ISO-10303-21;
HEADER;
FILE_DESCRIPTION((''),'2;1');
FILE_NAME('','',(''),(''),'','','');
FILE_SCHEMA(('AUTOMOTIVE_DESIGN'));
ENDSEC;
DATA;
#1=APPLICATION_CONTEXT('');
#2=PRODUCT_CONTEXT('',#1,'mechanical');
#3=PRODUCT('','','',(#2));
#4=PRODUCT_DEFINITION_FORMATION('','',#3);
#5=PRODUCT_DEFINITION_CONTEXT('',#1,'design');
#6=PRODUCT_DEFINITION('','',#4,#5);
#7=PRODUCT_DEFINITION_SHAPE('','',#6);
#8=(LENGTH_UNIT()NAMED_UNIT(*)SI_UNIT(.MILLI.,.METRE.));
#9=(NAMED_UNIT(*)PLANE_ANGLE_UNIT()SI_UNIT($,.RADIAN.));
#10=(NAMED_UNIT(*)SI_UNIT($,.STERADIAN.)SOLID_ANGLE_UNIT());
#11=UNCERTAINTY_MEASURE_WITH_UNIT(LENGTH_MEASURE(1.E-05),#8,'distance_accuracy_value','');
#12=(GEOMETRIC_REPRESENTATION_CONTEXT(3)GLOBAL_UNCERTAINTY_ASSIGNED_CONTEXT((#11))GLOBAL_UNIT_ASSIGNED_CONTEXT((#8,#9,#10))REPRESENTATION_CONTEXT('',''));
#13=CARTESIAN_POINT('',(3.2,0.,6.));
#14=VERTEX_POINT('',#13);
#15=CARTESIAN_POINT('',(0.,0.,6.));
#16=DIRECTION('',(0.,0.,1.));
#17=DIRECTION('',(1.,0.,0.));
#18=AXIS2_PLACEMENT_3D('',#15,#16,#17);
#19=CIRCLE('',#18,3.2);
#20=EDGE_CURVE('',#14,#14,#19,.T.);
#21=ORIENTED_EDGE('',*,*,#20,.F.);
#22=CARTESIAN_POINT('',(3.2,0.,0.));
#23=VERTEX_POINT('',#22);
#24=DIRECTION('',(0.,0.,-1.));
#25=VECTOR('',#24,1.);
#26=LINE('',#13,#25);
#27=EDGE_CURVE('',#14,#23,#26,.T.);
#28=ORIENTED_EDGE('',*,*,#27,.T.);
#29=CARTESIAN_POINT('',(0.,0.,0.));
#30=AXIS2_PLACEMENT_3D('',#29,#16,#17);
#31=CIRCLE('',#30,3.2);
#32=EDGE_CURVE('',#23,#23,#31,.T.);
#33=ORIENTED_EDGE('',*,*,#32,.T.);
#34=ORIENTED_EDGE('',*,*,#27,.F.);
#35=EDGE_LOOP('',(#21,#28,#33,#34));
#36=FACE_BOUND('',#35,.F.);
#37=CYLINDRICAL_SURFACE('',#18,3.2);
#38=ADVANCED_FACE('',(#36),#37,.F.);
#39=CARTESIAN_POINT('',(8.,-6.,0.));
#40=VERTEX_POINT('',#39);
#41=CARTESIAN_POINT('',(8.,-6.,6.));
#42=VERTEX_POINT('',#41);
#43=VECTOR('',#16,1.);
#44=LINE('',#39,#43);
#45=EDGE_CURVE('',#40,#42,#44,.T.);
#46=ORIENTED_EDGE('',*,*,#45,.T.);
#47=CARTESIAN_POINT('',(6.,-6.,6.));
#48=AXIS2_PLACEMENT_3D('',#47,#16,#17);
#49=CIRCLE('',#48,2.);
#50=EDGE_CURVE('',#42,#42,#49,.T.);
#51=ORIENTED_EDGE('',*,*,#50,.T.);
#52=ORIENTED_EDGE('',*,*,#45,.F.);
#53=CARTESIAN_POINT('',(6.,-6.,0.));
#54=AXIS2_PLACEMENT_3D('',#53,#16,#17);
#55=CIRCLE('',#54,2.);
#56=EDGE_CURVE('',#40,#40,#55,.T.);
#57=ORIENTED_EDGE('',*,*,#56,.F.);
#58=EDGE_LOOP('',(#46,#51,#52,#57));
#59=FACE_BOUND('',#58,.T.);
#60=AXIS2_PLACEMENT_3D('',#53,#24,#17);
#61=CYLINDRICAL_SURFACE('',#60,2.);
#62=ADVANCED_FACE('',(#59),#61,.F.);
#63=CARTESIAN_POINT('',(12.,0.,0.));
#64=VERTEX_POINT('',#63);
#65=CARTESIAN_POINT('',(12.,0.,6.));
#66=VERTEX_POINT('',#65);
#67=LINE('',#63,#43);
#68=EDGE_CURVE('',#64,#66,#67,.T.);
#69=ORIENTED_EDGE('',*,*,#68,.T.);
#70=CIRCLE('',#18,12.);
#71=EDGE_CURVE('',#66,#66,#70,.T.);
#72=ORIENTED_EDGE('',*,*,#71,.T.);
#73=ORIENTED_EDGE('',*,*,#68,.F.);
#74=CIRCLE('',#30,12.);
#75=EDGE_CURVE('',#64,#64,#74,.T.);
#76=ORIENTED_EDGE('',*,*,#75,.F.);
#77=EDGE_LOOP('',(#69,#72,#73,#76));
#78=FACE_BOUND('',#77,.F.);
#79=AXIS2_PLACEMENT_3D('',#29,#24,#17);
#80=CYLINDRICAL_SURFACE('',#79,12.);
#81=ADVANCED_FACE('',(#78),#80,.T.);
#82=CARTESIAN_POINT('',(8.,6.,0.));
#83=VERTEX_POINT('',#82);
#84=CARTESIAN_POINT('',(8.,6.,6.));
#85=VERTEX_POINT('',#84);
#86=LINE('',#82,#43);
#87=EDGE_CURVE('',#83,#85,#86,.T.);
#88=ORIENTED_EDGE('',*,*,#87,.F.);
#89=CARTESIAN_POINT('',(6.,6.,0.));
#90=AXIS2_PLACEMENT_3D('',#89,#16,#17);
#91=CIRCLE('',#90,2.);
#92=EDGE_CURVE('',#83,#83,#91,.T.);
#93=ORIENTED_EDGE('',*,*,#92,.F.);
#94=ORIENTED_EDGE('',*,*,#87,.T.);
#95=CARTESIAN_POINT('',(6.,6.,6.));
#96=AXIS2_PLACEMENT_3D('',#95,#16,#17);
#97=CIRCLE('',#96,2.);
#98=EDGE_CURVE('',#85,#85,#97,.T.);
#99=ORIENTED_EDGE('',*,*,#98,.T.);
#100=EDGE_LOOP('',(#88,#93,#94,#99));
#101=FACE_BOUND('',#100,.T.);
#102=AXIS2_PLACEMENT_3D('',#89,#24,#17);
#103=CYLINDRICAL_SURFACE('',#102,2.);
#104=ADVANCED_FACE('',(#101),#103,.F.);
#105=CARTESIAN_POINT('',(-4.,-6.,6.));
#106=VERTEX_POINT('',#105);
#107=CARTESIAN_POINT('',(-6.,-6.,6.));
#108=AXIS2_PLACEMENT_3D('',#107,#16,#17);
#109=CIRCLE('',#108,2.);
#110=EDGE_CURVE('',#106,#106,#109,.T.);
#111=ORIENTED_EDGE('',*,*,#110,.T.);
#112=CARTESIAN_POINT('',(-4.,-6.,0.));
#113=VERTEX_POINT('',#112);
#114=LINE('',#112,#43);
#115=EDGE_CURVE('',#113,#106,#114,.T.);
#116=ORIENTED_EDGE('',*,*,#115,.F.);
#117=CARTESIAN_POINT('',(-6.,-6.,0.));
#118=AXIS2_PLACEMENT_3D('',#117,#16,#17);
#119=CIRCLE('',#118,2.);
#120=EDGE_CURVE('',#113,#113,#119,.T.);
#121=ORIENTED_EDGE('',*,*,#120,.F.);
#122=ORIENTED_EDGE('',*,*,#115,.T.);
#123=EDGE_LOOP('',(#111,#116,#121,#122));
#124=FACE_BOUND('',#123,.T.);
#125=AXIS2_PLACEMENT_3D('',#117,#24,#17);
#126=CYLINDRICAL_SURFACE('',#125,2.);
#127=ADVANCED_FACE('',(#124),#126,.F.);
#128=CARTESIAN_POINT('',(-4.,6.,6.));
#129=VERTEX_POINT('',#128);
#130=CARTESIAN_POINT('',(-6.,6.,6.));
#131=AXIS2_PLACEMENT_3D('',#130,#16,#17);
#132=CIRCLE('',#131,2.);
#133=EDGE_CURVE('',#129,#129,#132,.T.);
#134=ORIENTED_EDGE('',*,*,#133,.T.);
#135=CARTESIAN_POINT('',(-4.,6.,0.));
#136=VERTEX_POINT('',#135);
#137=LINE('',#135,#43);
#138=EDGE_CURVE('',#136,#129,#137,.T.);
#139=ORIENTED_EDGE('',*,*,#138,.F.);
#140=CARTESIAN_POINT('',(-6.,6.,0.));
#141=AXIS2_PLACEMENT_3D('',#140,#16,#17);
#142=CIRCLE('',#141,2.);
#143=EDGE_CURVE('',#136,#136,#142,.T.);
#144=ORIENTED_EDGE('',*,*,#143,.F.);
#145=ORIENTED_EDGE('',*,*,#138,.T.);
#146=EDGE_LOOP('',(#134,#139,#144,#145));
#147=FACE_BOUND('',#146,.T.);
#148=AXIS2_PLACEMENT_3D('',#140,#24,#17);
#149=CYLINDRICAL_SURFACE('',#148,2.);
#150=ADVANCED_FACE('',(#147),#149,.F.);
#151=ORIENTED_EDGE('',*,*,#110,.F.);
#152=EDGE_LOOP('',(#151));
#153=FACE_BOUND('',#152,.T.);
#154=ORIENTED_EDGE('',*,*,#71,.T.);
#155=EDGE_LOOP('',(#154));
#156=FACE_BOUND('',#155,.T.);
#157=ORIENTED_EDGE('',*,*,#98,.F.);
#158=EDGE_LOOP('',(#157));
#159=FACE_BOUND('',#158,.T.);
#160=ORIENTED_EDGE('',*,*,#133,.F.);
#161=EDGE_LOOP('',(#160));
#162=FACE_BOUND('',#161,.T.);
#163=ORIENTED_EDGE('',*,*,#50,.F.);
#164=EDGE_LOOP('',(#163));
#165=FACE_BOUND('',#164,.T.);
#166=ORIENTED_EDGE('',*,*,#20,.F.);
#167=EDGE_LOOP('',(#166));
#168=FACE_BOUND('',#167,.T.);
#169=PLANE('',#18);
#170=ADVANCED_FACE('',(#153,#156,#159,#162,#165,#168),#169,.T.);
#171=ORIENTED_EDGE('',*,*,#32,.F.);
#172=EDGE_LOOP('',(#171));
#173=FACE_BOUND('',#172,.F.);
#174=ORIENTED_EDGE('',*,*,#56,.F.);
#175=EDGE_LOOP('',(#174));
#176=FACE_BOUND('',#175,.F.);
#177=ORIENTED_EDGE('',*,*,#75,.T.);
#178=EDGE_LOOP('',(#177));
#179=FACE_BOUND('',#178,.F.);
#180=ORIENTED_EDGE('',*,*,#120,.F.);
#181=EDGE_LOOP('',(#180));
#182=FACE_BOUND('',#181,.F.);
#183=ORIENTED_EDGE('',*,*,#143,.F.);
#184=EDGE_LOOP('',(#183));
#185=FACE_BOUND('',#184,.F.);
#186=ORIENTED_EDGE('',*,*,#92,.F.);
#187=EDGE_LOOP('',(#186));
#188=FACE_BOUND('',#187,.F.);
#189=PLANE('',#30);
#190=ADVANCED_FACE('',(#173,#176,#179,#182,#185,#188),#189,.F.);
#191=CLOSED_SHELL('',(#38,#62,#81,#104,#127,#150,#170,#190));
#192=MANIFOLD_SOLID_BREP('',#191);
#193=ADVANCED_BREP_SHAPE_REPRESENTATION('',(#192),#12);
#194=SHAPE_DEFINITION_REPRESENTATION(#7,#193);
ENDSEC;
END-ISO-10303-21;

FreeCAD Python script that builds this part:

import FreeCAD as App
import Part
import Sketcher

V = App.Vector
Q = App.Units.Quantity

doc = App.newDocument("Part")
body = doc.addObject("PartDesign::Body", "Body")

sketch1 = body.newObject("Sketcher::SketchObject", "Sketch")
sketch1.AttachmentSupport = (doc.getObject("XY_Plane"), [""])
sketch1.MapMode = "FlatFace"
sketch1.addGeometry(Part.Circle(V(0, 0, 0), V(0, 0, 1), 12), False)
sketch1.addGeometry(Part.Circle(V(-6, -6, 0), V(0, 0, 1), 2), False)
sketch1.addGeometry(Part.Circle(V(6, -6, 0), V(0, 0, 1), 2), False)
sketch1.addGeometry(Part.Circle(V(-6, 6, 0), V(0, 0, 1), 2), False)
sketch1.addGeometry(Part.Circle(V(6, 6, 0), V(0, 0, 1), 2), False)
sketch1.addConstraint(Sketcher.Constraint("Coincident", 0, 3, -1, 1))
sketch1.addConstraint(Sketcher.Constraint("Equal", 1, 2))
sketch1.addConstraint(Sketcher.Constraint("Equal", 2, 3))
sketch1.addConstraint(Sketcher.Constraint("Equal", 3, 4))
sketch1.addConstraint(Sketcher.Constraint("Symmetric", 2, 3, 3, 3, -1, 1))
sketch1.addConstraint(Sketcher.Constraint("Symmetric", 1, 3, 4, 3, -1, 1))
sketch1.addConstraint(Sketcher.Constraint("Symmetric", 1, 3, 2, 3, -2))
sketch1.addConstraint(Sketcher.Constraint("Diameter", 0, Q("24 mm")))
sketch1.addConstraint(Sketcher.Constraint("Diameter", 1, Q("4 mm")))
sketch1.addConstraint(Sketcher.Constraint("DistanceX", 1, 3, -1, 1, Q("6 mm")))
sketch1.addConstraint(Sketcher.Constraint("DistanceY", 1, 3, -1, 1, Q("6 mm")))
pad1 = body.newObject("PartDesign::Pad", "Pad")
pad1.Profile = sketch1
pad1.Length = 6

sketch2 = body.newObject("Sketcher::SketchObject", "Sketch001")
sketch2.AttachmentSupport = (doc.getObject("XY_Plane"), [""])
sketch2.MapMode = "FlatFace"
sketch2.AttachmentOffset = App.Placement(V(0, 0, 6), App.Rotation())
sketch2.addGeometry(Part.Circle(V(0, 0, 0), V(0, 0, 1), 3.2), False)
sketch2.addConstraint(Sketcher.Constraint("Coincident", 0, 3, -1, 1))
sketch2.addConstraint(Sketcher.Constraint("Diameter", 0, Q("6.4 mm")))
pocket1 = body.newObject("PartDesign::Pocket", "Pocket")
pocket1.Profile = sketch2
pocket1.Type = "ThroughAll"

doc.recompute()
